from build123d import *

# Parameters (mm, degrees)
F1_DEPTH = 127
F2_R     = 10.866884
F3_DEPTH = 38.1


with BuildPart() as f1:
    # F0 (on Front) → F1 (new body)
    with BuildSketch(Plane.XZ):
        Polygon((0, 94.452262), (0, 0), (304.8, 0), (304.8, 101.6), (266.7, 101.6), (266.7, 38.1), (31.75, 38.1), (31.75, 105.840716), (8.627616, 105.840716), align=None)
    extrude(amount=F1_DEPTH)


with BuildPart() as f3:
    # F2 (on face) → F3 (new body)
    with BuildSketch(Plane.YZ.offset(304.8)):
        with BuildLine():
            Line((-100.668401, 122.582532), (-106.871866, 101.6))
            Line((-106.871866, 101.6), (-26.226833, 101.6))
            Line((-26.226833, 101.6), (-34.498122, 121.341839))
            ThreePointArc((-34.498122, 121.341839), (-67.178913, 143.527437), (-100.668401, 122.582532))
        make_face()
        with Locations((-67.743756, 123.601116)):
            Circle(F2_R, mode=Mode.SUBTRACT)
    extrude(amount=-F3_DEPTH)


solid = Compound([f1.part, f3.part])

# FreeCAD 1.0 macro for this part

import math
import FreeCAD as App
import Part
import Sketcher
from FreeCAD import Vector
Q = App.Units.Quantity


def add_polygon(sketch, points):
    """Adds a closed chain of lines whose ends are joined by coincident constraints."""
    first, n = sketch.GeometryCount, len(points)
    for a, b in zip(points, points[1:] + points[:1]):
        sketch.addGeometry(Part.LineSegment(App.Vector(*a, 0), App.Vector(*b, 0)), False)
    for i in range(n):
        sketch.addConstraint(Sketcher.Constraint("Coincident", first + i, 2, first + (i + 1) % n, 1))

doc = App.newDocument("Part")
body = doc.addObject("PartDesign::Body", "Body")

sketch1 = body.newObject("Sketcher::SketchObject", "Sketch")
sketch1.AttachmentSupport = (doc.getObject("XZ_Plane"), [""])
sketch1.MapMode = "FlatFace"
add_polygon(sketch1, [(0, 94), (0, 0), (305, 0), (305, 102), (267, 102), (267, 38), (32, 38), (32, 106), (9, 106)])
sketch1.addConstraint([
    Sketcher.Constraint("Vertical", 0),
    Sketcher.Constraint("Horizontal", 1),
    Sketcher.Constraint("Vertical", 2),
    Sketcher.Constraint("Horizontal", 3),
    Sketcher.Constraint("Vertical", 4),
    Sketcher.Constraint("Horizontal", 5),
    Sketcher.Constraint("Vertical", 6),
    Sketcher.Constraint("Horizontal", 7),
    Sketcher.Constraint("Coincident", 0, 2, -1, 1),
    Sketcher.Constraint("DistanceX", 1, 1, 1, 2, Q("12 in")),
    Sketcher.Constraint("DistanceY", 2, 1, 2, 2, Q("4 in")),
    Sketcher.Constraint("DistanceX", 3, 2, 3, 1, Q("1.5 in")),
    Sketcher.Constraint("DistanceY", 4, 2, 4, 1, Q("2.5 in")),
    Sketcher.Constraint("DistanceX", 5, 2, 5, 1, Q("9.25 in")),
    Sketcher.Constraint("Distance", 8, Q("0.5625 in")),
    Sketcher.Constraint("DistanceX", 7, 2, 7, 1, Q("23.122384 mm")),
    Sketcher.Constraint("DistanceY", 0, 2, 0, 1, Q("94.452262 mm")),
])
pad1 = body.newObject("PartDesign::Pad", "Pad")
pad1.Profile = sketch1
pad1.Length = Q("5 in")
body2 = doc.addObject("PartDesign::Body", "Body001")

sketch2 = body2.newObject("Sketcher::SketchObject", "Sketch001")
sketch2.AttachmentSupport = (doc.getObject("YZ_Plane001"), [""])
sketch2.MapMode = "FlatFace"
sketch2.AttachmentOffset = App.Placement(Vector(0, 0, 12 * 25.4), App.Rotation())
sketch2.addGeometry([
    Part.LineSegment(Vector(-101, 123, 0), Vector(-107, 102, 0)),
    Part.LineSegment(Vector(-107, 102, 0), Vector(-26, 102, 0)),
    Part.LineSegment(Vector(-26, 102, 0), Vector(-34, 121, 0)),
    Part.ArcOfCircle(Part.Circle(Vector(-68, 107, 0), Vector(0, 0, 1), 36), math.radians(23), math.radians(155)),
    Part.Circle(Vector(-68, 124, 0), Vector(0, 0, 1), 11),
], False)
sketch2.addConstraint([
    Sketcher.Constraint("Coincident", 0, 2, 1, 1),
    Sketcher.Constraint("Coincident", 1, 2, 2, 1),
    Sketcher.Constraint("Tangent", 2, 2, 3, 1),
    Sketcher.Constraint("Coincident", 3, 2, 0, 1),
    Sketcher.Constraint("Horizontal", 1),
    Sketcher.Constraint("DistanceY", -1, 1, 0, 2, Q("4 in")),
    Sketcher.Constraint("Diameter", 4, Q("21.733768 mm")),
    Sketcher.Constraint("Radius", 3, Q("36.168386 mm")),
    Sketcher.Constraint("DistanceX", 3, 2, -1, 1, Q("100.668401 mm")),
    Sketcher.Constraint("DistanceX", 1, 1, 1, 2, Q("80.645033 mm")),
    Sketcher.Constraint("DistanceX", 3, 3, -1, 1, Q("67.856951 mm")),
    Sketcher.Constraint("DistanceY", -1, 1, 2, 2, Q("121.341839 mm")),
    Sketcher.Constraint("DistanceY", -1, 1, 3, 2, Q("122.582532 mm")),
    Sketcher.Constraint("DistanceY", 3, 3, 4, 3, Q("16.235709 mm")),
    Sketcher.Constraint("DistanceX", 0, 2, 4, 3, Q("39.12811 mm")),
])
pad2 = body2.newObject("PartDesign::Pad", "Pad001")
pad2.Profile = sketch2
pad2.Length = Q("1.5 in")
pad2.Reversed = True

doc.recompute()
